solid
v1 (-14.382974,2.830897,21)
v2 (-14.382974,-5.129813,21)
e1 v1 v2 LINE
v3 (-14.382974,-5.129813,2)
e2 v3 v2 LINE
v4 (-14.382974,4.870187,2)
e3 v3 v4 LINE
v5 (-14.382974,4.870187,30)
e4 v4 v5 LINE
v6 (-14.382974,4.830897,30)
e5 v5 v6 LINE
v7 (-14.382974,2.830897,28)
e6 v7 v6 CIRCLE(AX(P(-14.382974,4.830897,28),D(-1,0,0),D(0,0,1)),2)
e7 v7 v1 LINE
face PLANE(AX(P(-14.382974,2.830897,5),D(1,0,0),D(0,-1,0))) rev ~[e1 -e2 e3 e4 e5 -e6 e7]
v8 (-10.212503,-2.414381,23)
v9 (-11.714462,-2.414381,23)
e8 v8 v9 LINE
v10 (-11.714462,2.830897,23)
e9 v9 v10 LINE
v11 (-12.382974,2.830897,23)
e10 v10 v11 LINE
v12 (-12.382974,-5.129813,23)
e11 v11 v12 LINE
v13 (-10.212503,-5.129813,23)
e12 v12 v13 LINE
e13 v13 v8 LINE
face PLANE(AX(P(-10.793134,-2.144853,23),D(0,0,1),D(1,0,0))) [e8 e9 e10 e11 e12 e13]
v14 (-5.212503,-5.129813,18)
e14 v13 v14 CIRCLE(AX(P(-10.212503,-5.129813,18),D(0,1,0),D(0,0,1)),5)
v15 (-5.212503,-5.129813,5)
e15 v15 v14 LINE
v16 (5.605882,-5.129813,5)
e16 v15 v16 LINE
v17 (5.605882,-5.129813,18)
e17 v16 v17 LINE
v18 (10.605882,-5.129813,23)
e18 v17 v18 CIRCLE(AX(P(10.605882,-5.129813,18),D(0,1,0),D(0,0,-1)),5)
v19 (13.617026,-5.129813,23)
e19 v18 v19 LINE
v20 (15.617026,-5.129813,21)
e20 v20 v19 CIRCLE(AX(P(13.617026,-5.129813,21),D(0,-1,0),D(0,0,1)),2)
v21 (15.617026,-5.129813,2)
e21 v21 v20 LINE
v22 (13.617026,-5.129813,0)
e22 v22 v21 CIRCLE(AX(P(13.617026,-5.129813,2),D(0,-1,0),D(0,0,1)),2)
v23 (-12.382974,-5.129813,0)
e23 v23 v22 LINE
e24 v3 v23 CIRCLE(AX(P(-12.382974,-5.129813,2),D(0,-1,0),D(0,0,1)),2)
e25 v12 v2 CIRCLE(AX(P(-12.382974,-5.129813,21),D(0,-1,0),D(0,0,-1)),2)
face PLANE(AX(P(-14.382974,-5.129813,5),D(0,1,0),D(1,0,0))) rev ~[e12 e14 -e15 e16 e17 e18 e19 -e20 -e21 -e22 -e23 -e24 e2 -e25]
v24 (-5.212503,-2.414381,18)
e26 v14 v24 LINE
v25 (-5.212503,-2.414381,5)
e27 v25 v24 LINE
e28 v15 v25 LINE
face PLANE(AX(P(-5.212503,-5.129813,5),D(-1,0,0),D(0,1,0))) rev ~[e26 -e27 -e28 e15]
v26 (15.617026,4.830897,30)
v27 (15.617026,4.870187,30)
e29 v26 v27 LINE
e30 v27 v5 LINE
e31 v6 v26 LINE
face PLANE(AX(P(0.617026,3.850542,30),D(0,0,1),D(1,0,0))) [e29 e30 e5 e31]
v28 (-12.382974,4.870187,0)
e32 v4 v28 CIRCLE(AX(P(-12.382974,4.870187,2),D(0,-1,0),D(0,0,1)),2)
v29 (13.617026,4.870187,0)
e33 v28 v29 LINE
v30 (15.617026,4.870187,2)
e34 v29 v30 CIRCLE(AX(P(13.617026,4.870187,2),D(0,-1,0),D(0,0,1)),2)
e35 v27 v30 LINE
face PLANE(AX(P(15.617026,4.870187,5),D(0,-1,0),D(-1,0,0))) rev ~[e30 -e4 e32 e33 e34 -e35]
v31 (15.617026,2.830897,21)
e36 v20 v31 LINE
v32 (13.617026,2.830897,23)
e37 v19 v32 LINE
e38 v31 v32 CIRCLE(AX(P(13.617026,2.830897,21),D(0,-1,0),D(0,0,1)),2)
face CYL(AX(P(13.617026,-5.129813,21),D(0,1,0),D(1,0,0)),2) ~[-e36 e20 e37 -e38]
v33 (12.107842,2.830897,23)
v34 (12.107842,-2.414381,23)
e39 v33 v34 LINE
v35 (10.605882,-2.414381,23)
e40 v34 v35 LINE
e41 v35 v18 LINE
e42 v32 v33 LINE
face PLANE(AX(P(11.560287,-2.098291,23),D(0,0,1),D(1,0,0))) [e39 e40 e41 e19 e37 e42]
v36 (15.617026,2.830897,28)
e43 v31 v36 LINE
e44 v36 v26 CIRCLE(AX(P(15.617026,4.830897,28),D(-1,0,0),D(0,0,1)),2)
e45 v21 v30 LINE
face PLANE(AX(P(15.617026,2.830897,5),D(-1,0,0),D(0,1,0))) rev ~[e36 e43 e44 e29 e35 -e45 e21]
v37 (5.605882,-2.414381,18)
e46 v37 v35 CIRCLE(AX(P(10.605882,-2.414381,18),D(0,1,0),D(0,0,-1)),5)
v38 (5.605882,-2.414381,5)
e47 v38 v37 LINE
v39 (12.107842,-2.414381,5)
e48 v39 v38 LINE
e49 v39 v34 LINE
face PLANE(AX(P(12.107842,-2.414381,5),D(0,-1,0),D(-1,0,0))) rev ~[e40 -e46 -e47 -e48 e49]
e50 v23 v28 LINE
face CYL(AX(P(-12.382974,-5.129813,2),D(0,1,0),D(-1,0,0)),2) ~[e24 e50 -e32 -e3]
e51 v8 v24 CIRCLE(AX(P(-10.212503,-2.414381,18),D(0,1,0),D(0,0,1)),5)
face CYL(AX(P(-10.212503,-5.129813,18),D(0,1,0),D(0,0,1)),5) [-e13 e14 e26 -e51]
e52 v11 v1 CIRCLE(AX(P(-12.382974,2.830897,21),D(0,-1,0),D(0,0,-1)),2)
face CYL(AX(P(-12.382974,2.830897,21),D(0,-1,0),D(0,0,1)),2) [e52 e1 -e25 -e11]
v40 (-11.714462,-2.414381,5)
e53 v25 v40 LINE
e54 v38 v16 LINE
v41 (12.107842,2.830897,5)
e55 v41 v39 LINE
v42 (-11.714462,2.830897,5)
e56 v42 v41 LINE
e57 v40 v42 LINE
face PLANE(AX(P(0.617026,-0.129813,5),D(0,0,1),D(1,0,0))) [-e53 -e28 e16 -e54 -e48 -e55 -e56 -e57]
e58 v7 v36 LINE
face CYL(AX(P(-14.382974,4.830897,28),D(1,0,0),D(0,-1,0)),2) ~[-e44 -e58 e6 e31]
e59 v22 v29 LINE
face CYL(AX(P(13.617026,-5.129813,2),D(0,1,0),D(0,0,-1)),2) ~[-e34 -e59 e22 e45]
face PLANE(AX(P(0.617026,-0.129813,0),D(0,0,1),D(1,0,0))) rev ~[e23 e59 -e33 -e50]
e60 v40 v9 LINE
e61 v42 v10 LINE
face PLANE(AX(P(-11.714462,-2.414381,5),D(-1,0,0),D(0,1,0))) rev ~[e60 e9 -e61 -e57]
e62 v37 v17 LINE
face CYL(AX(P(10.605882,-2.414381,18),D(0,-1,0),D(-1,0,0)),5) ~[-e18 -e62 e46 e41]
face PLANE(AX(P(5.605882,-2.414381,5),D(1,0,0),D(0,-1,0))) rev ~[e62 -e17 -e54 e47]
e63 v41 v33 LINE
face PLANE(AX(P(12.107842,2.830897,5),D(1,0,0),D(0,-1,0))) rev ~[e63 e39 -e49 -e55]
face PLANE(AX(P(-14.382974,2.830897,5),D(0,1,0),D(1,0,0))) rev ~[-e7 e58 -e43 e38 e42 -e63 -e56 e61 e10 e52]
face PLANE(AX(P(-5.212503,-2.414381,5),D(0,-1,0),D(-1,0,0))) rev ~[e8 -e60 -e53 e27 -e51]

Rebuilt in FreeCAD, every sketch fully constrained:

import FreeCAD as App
import Part
import Sketcher

V = App.Vector


def edges_at(feature, points):
    """Names of the edges that pass closest to the given points."""
    edges = feature.Shape.Edges
    near = lambda p: min(range(len(edges)), key=lambda i: edges[i].distToShape(Part.Vertex(*p))[0])
    return sorted({f"Edge{near(p) + 1}" for p in points})


def add_polygon(sketch, points):
    """Adds a closed chain of lines whose ends are joined by coincident constraints."""
    first, n = sketch.GeometryCount, len(points)
    for a, b in zip(points, points[1:] + points[:1]):
        sketch.addGeometry(Part.LineSegment(App.Vector(*a, 0), App.Vector(*b, 0)), False)
    for i in range(n):
        sketch.addConstraint(Sketcher.Constraint("Coincident", first + i, 2, first + (i + 1) % n, 1))

doc = App.newDocument("Part")
params = doc.addObject("Spreadsheet::Sheet", "Params")
for row, (alias, value) in enumerate([
    ("sketch1_width", "30 mm"),
    ("sketch1_height", "10 mm"),
    ("pad1_length", "5 mm"),
    ("sketch2_width", "30 mm"),
    ("pad2_length", "25 mm"),
    ("pad3_length", "18 mm"),
    ("fillet_radius", "5 mm"),
    ("fillet2_radius", "2 mm"),
], start=1):
    params.set(f"A{row}", alias)
    params.set(f"B{row}", "=" + value)
    params.setAlias(f"B{row}", alias)

body = doc.addObject("PartDesign::Body", "Body")

# Sketch on XY plane
sketch1 = doc.addObject("Sketcher::SketchObject", "Sketch")
body.addObject(sketch1)
sketch1.AttachmentSupport = (doc.XY_Plane, [""])
sketch1.MapMode = "FlatFace"
add_polygon(sketch1, [(-14, 5), (-14, -5), (16, -5), (16, 5)])  # lines 0-3
sketch1.addConstraint([
    Sketcher.Constraint("Vertical", 0),
    Sketcher.Constraint("Horizontal", 1),
    Sketcher.Constraint("Vertical", 2),
    Sketcher.Constraint("Horizontal", 3),
    Sketcher.Constraint("DistanceX", 1, 1, 1, 2, 30.0),
    Sketcher.Constraint("DistanceY", 0, 2, 0, 1, 10.0),
    Sketcher.Constraint("DistanceX", 0, 2, -1, 1, 14.382974),
    Sketcher.Constraint("DistanceY", 0, 2, -1, 1, 5.129813),
])
sketch1.setExpression("Constraints[8]", "Params.sketch1_width")
sketch1.setExpression("Constraints[9]", "Params.sketch1_height")
pad1 = doc.addObject("PartDesign::Pad", "Pad")
body.addObject(pad1)
pad1.Profile = sketch1
pad1.setExpression("Length", "Params.pad1_length")

# Sketch on XY plane
sketch2 = doc.addObject("Sketcher::SketchObject", "Sketch001")
body.addObject(sketch2)
sketch2.AttachmentSupport = (doc.XY_Plane, [""])
sketch2.MapMode = "FlatFace"
sketch2.AttachmentOffset = App.Placement(V(0, 0, 5), App.Rotation())
add_polygon(sketch2, [(15.6, 4.9), (-14.4, 4.9), (-14.4, 2.8), (15.6, 2.8)])  # lines 0-3
sketch2.addConstraint([
    Sketcher.Constraint("Horizontal", 0),
    Sketcher.Constraint("Vertical", 1),
    Sketcher.Constraint("Horizontal", 2),
    Sketcher.Constraint("Vertical", 3),
    Sketcher.Constraint("DistanceX", 0, 2, 0, 1, 30.0),
    Sketcher.Constraint("DistanceY", 1, 2, 1, 1, 2.03929),
    Sketcher.Constraint("DistanceX", 0, 2, -1, 1, 14.382974),
    Sketcher.Constraint("DistanceY", -1, 1, 0, 2, 4.870187),
])
sketch2.setExpression("Constraints[8]", "Params.sketch2_width")
pad2 = doc.addObject("PartDesign::Pad", "Pad001")
body.addObject(pad2)
pad2.Profile = sketch2
pad2.setExpression("Length", "Params.pad2_length")

# Sketch on XY plane
sketch3 = doc.addObject("Sketcher::SketchObject", "Sketch002")
body.addObject(sketch3)
sketch3.AttachmentSupport = (doc.XY_Plane, [""])
sketch3.MapMode = "FlatFace"
sketch3.AttachmentOffset = App.Placement(V(0, 0, 5), App.Rotation())
add_polygon(sketch3, [(-11.7, 2.8), (-14.4, 2.8), (-14.4, -5.1), (-5.2, -5.1), (-5.2, -2.4), (-11.7, -2.4)])  # lines 0-5
add_polygon(sketch3, [(15.6, -5.1), (15.6, 2.8), (12.1, 2.8), (12.1, -2.4), (5.6, -2.4), (5.6, -5.1)])  # lines 6-11
sketch3.addConstraint([
    Sketcher.Constraint("Horizontal", 0),
    Sketcher.Constraint("Vertical", 1),
    Sketcher.Constraint("Horizontal", 2),
    Sketcher.Constraint("Vertical", 3),
    Sketcher.Constraint("Horizontal", 4),
    Sketcher.Constraint("Vertical", 5),
    Sketcher.Constraint("Vertical", 6),
    Sketcher.Constraint("Horizontal", 7),
    Sketcher.Constraint("Vertical", 8),
    Sketcher.Constraint("Horizontal", 9),
    Sketcher.Constraint("Vertical", 10),
    Sketcher.Constraint("Horizontal", 11),
    Sketcher.Constraint("Horizontal", 5, 2, 6, 2),
    Sketcher.Constraint("Horizontal", 4, 2, 8, 2),
    Sketcher.Constraint("Horizontal", 2, 2, 10, 2),
    Sketcher.Constraint("Equal", 4, 9),
    Sketcher.Constraint("DistanceX", 0, 2, 6, 2, 30.0),
    Sketcher.Constraint("DistanceX", 2, 1, 2, 2, 9.170471),
    Sketcher.Constraint("DistanceX", 4, 2, 4, 1, 6.501959),
    Sketcher.Constraint("DistanceY", 1, 2, 1, 1, 7.96071),
    Sketcher.Constraint("DistanceY", 3, 1, 3, 2, 2.715432),
    Sketcher.Constraint("DistanceX", 7, 2, 7, 1, 3.509184),
    Sketcher.Constraint("DistanceY", 3, 2, -1, 1, 2.414381),
    Sketcher.Constraint("DistanceX", -1, 1, 7, 2, 12.107842),
])
pad3 = doc.addObject("PartDesign::Pad", "Pad002")
body.addObject(pad3)
pad3.Profile = sketch3
pad3.setExpression("Length", "Params.pad3_length")
doc.recompute()

fillet = doc.addObject("PartDesign::Fillet", "Fillet")
body.addObject(fillet)
fillet.Base = (pad3, edges_at(pad3, [(-5.213, -3.772, 23), (5.606, -3.772, 23)]))
fillet.setExpression("Radius", "Params.fillet_radius")
doc.recompute()

fillet2 = doc.addObject("PartDesign::Fillet", "Fillet001")
body.addObject(fillet2)
fillet2.Base = (fillet, edges_at(fillet, [
    (0.617, 2.831, 30),
    (15.617, -0.13, 0),
    (15.617, -1.149, 23),
    (-14.383, -1.149, 23),
    (-14.383, -0.13, 0),
]))
fillet2.setExpression("Radius", "Params.fillet2_radius")

doc.recompute()
